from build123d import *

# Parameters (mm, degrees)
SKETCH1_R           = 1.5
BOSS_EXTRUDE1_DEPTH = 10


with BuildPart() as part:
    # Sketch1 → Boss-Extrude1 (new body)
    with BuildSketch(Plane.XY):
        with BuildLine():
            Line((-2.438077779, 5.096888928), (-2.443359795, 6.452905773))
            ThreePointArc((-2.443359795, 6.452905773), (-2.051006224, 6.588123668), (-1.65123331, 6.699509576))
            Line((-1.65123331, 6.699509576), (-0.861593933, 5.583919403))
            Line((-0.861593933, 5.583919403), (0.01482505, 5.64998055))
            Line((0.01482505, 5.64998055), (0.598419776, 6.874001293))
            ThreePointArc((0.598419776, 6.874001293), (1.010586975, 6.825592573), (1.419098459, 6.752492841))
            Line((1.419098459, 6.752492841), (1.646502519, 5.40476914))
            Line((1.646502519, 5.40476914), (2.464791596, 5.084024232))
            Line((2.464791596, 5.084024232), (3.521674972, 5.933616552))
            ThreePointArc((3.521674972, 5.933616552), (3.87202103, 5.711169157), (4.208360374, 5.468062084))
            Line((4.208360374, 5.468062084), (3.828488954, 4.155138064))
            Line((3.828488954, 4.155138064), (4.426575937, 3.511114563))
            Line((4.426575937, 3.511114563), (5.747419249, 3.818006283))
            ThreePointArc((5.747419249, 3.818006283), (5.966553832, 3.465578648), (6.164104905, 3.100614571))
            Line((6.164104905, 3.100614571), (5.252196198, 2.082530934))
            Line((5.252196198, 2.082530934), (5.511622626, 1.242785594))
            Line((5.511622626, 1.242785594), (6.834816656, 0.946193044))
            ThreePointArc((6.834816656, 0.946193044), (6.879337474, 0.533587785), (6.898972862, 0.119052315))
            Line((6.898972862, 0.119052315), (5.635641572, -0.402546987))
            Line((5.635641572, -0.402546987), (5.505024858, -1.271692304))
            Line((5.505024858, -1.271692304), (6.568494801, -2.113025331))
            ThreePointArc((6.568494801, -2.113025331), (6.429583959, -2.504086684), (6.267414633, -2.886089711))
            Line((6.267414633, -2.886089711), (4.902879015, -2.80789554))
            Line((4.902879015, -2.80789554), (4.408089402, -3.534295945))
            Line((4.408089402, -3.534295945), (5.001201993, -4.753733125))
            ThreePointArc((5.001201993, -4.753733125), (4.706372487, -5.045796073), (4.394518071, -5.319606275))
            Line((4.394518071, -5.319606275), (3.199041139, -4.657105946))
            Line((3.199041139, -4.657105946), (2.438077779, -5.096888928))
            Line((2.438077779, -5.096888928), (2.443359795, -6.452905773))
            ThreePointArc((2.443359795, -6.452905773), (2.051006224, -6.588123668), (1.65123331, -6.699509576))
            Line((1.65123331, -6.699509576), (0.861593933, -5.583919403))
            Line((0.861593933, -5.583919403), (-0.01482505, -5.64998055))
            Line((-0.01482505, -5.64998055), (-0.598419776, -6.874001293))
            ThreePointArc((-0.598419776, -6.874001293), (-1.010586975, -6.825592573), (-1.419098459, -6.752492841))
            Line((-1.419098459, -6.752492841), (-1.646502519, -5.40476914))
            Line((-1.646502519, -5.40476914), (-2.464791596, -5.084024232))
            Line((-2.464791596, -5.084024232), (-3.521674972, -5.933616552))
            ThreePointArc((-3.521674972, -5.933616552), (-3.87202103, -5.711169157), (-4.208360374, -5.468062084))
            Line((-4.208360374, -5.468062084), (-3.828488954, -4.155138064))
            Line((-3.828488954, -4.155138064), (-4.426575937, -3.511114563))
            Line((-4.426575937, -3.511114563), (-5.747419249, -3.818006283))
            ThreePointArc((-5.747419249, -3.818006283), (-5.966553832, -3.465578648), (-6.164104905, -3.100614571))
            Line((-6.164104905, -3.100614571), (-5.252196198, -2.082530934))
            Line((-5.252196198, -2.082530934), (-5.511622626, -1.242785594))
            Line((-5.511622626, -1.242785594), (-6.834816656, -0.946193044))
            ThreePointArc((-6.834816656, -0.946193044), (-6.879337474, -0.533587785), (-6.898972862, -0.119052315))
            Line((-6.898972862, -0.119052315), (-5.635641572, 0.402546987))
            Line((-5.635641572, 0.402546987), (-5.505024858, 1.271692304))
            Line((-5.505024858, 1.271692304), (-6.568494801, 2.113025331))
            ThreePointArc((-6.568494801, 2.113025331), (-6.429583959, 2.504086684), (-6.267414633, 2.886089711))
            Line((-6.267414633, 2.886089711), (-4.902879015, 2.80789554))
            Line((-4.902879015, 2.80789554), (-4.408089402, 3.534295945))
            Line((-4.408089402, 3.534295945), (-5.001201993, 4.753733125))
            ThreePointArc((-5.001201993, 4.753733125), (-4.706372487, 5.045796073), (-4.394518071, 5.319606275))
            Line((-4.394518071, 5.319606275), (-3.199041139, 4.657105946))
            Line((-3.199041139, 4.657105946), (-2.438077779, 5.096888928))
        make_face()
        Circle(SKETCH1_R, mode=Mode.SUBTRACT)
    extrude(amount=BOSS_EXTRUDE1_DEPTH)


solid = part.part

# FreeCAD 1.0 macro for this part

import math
import FreeCAD as App
import Part
import Sketcher
from FreeCAD import Vector
Q = App.Units.Quantity

doc = App.newDocument("Part")
body = doc.addObject("PartDesign::Body", "Body")

# Sketch on XY plane
sketch1 = body.newObject("Sketcher::SketchObject", "Sketch")
sketch1.AttachmentSupport = (doc.getObject("XY_Plane"), [""])
sketch1.MapMode = "FlatFace"
sketch1.addGeometry([
    Part.LineSegment(Vector(-2.44336, 6.452906, 0), Vector(-2.438078, 5.096889, 0)),  # 0
    Part.LineSegment(Vector(-2.438078, 5.096889, 0), Vector(-3.199041, 4.657106, 0)),  # 1
    Part.LineSegment(Vector(-3.199041, 4.657106, 0), Vector(-4.394518, 5.319606, 0)),  # 2
    Part.ArcOfCircle(Part.Circle(Vector(0, 0, 0), Vector(0, 0, 1), 6.9), math.radians(129.560057), math.radians(136.453201)),  # 3
    Part.LineSegment(Vector(-5.001202, 4.753733, 0), Vector(-4.408089, 3.534296, 0)),  # 4
    Part.LineSegment(Vector(-4.408089, 3.534296, 0), Vector(-4.902879, 2.807896, 0)),  # 5
    Part.LineSegment(Vector(-4.902879, 2.807896, 0), Vector(-6.267415, 2.88609, 0)),  # 6
    Part.ArcOfCircle(Part.Circle(Vector(0, 0, 0), Vector(0, 0, 1), 6.9), math.radians(155.274342), math.radians(162.167487)),  # 7
    Part.LineSegment(Vector(-6.568495, 2.113025, 0), Vector(-5.505025, 1.271692, 0)),  # 8
    Part.LineSegment(Vector(-5.505025, 1.271692, 0), Vector(-5.635642, 0.402547, 0)),  # 9
    Part.LineSegment(Vector(-5.635642, 0.402547, 0), Vector(-6.898973, -0.119052, 0)),  # 10
    Part.ArcOfCircle(Part.Circle(Vector(0, 0, 0), Vector(0, 0, 1), 6.9), math.radians(-179.011372), math.radians(-172.118227)),  # 11
    Part.LineSegment(Vector(-6.834817, -0.946193, 0), Vector(-5.511623, -1.242786, 0)),  # 12
    Part.LineSegment(Vector(-5.511623, -1.242786, 0), Vector(-5.252196, -2.082531, 0)),  # 13
    Part.LineSegment(Vector(-5.252196, -2.082531, 0), Vector(-6.164105, -3.100615, 0)),  # 14
    Part.ArcOfCircle(Part.Circle(Vector(0, 0, 0), Vector(0, 0, 1), 6.9), math.radians(-153.297086), math.radians(-146.403942)),  # 15
    Part.LineSegment(Vector(-5.747419, -3.818006, 0), Vector(-4.426576, -3.511115, 0)),  # 16
    Part.LineSegment(Vector(-4.426576, -3.511115, 0), Vector(-3.828489, -4.155138, 0)),  # 17
    Part.LineSegment(Vector(-3.828489, -4.155138, 0), Vector(-4.20836, -5.468062, 0)),  # 18
    Part.ArcOfCircle(Part.Circle(Vector(0, 0, 0), Vector(0, 0, 1), 6.9), math.radians(-127.582801), math.radians(-120.689656)),  # 19
    Part.LineSegment(Vector(-3.521675, -5.933617, 0), Vector(-2.464792, -5.084024, 0)),  # 20
    Part.LineSegment(Vector(-2.464792, -5.084024, 0), Vector(-1.646503, -5.404769, 0)),  # 21
    Part.LineSegment(Vector(-1.646503, -5.404769, 0), Vector(-1.419098, -6.752493, 0)),  # 22
    Part.ArcOfCircle(Part.Circle(Vector(0, 0, 0), Vector(0, 0, 1), 6.9), math.radians(-101.868515), math.radians(-94.97537)),  # 23
    Part.LineSegment(Vector(-0.59842, -6.874001, 0), Vector(-0.014825, -5.649981, 0)),  # 24
    Part.LineSegment(Vector(-0.014825, -5.649981, 0), Vector(0.861594, -5.583919, 0)),  # 25
    Part.LineSegment(Vector(0.861594, -5.583919, 0), Vector(1.651233, -6.69951, 0)),  # 26
    Part.ArcOfCircle(Part.Circle(Vector(0, 0, 0), Vector(0, 0, 1), 6.9), math.radians(-76.154229), math.radians(-69.261085)),  # 27
    Part.LineSegment(Vector(2.44336, -6.452906, 0), Vector(2.438078, -5.096889, 0)),  # 28
    Part.LineSegment(Vector(2.438078, -5.096889, 0), Vector(3.199041, -4.657106, 0)),  # 29
    Part.LineSegment(Vector(3.199041, -4.657106, 0), Vector(4.394518, -5.319606, 0)),  # 30
    Part.ArcOfCircle(Part.Circle(Vector(0, 0, 0), Vector(0, 0, 1), 6.9), math.radians(-50.439943), math.radians(-43.546799)),  # 31
    Part.LineSegment(Vector(5.001202, -4.753733, 0), Vector(4.408089, -3.534296, 0)),  # 32
    Part.LineSegment(Vector(4.408089, -3.534296, 0), Vector(4.902879, -2.807896, 0)),  # 33
    Part.LineSegment(Vector(4.902879, -2.807896, 0), Vector(6.267415, -2.88609, 0)),  # 34
    Part.ArcOfCircle(Part.Circle(Vector(0, 0, 0), Vector(0, 0, 1), 6.9), math.radians(-24.725658), math.radians(-17.832513)),  # 35
    Part.LineSegment(Vector(6.568495, -2.113025, 0), Vector(5.505025, -1.271692, 0)),  # 36
    Part.LineSegment(Vector(5.505025, -1.271692, 0), Vector(5.635642, -0.402547, 0)),  # 37
    Part.LineSegment(Vector(5.635642, -0.402547, 0), Vector(6.898973, 0.119052, 0)),  # 38
    Part.ArcOfCircle(Part.Circle(Vector(0, 0, 0), Vector(0, 0, 1), 6.9), math.radians(0.988628), math.radians(7.881773)),  # 39
    Part.LineSegment(Vector(6.834817, 0.946193, 0), Vector(5.511623, 1.242786, 0)),  # 40
    Part.LineSegment(Vector(5.511623, 1.242786, 0), Vector(5.252196, 2.082531, 0)),  # 41
    Part.LineSegment(Vector(5.252196, 2.082531, 0), Vector(6.164105, 3.100615, 0)),  # 42
    Part.ArcOfCircle(Part.Circle(Vector(0, 0, 0), Vector(0, 0, 1), 6.9), math.radians(26.702914), math.radians(33.596058)),  # 43
    Part.LineSegment(Vector(5.747419, 3.818006, 0), Vector(4.426576, 3.511115, 0)),  # 44
    Part.LineSegment(Vector(4.426576, 3.511115, 0), Vector(3.828489, 4.155138, 0)),  # 45
    Part.LineSegment(Vector(3.828489, 4.155138, 0), Vector(4.20836, 5.468062, 0)),  # 46
    Part.ArcOfCircle(Part.Circle(Vector(0, 0, 0), Vector(0, 0, 1), 6.9), math.radians(52.417199), math.radians(59.310344)),  # 47
    Part.LineSegment(Vector(3.521675, 5.933617, 0), Vector(2.464792, 5.084024, 0)),  # 48
    Part.LineSegment(Vector(2.464792, 5.084024, 0), Vector(1.646503, 5.404769, 0)),  # 49
    Part.LineSegment(Vector(1.646503, 5.404769, 0), Vector(1.419098, 6.752493, 0)),  # 50
    Part.ArcOfCircle(Part.Circle(Vector(0, 0, 0), Vector(0, 0, 1), 6.9), math.radians(78.131485), math.radians(85.02463)),  # 51
    Part.LineSegment(Vector(0.59842, 6.874001, 0), Vector(0.014825, 5.649981, 0)),  # 52
    Part.LineSegment(Vector(0.014825, 5.649981, 0), Vector(-0.861594, 5.583919, 0)),  # 53
    Part.LineSegment(Vector(-0.861594, 5.583919, 0), Vector(-1.651233, 6.69951, 0)),  # 54
    Part.ArcOfCircle(Part.Circle(Vector(0, 0, 0), Vector(0, 0, 1), 6.9), math.radians(103.845771), math.radians(110.738915)),  # 55
    Part.Circle(Vector(0, 0, 0), Vector(0, 0, 1), 1.5),  # 56
], False)
sketch1.addConstraint([
    Sketcher.Constraint("Coincident", 0, 2, 1, 1),
    Sketcher.Constraint("Coincident", 1, 2, 2, 1),
    Sketcher.Constraint("Coincident", 2, 2, 3, 1),
    Sketcher.Constraint("Coincident", 3, 2, 4, 1),
    Sketcher.Constraint("Coincident", 4, 2, 5, 1),
    Sketcher.Constraint("Coincident", 5, 2, 6, 1),
    Sketcher.Constraint("Coincident", 6, 2, 7, 1),
    Sketcher.Constraint("Coincident", 7, 2, 8, 1),
    Sketcher.Constraint("Coincident", 8, 2, 9, 1),
    Sketcher.Constraint("Coincident", 9, 2, 10, 1),
    Sketcher.Constraint("Coincident", 10, 2, 11, 1),
    Sketcher.Constraint("Coincident", 11, 2, 12, 1),
    Sketcher.Constraint("Coincident", 12, 2, 13, 1),
    Sketcher.Constraint("Coincident", 13, 2, 14, 1),
    Sketcher.Constraint("Coincident", 14, 2, 15, 1),
    Sketcher.Constraint("Coincident", 15, 2, 16, 1),
    Sketcher.Constraint("Coincident", 16, 2, 17, 1),
    Sketcher.Constraint("Coincident", 17, 2, 18, 1),
    Sketcher.Constraint("Coincident", 18, 2, 19, 1),
    Sketcher.Constraint("Coincident", 19, 2, 20, 1),
    Sketcher.Constraint("Coincident", 20, 2, 21, 1),
    Sketcher.Constraint("Coincident", 21, 2, 22, 1),
    Sketcher.Constraint("Coincident", 22, 2, 23, 1),
    Sketcher.Constraint("Coincident", 23, 2, 24, 1),
    Sketcher.Constraint("Coincident", 24, 2, 25, 1),
    Sketcher.Constraint("Coincident", 25, 2, 26, 1),
    Sketcher.Constraint("Coincident", 26, 2, 27, 1),
    Sketcher.Constraint("Coincident", 27, 2, 28, 1),
    Sketcher.Constraint("Coincident", 28, 2, 29, 1),
    Sketcher.Constraint("Coincident", 29, 2, 30, 1),
    Sketcher.Constraint("Coincident", 30, 2, 31, 1),
    Sketcher.Constraint("Coincident", 31, 2, 32, 1),
    Sketcher.Constraint("Coincident", 32, 2, 33, 1),
    Sketcher.Constraint("Coincident", 33, 2, 34, 1),
    Sketcher.Constraint("Coincident", 34, 2, 35, 1),
    Sketcher.Constraint("Coincident", 35, 2, 36, 1),
    Sketcher.Constraint("Coincident", 36, 2, 37, 1),
    Sketcher.Constraint("Coincident", 37, 2, 38, 1),
    Sketcher.Constraint("Coincident", 38, 2, 39, 1),
    Sketcher.Constraint("Coincident", 39, 2, 40, 1),
    Sketcher.Constraint("Coincident", 40, 2, 41, 1),
    Sketcher.Constraint("Coincident", 41, 2, 42, 1),
    Sketcher.Constraint("Coincident", 42, 2, 43, 1),
    Sketcher.Constraint("Coincident", 43, 2, 44, 1),
    Sketcher.Constraint("Coincident", 44, 2, 45, 1),
    Sketcher.Constraint("Coincident", 45, 2, 46, 1),
    Sketcher.Constraint("Coincident", 46, 2, 47, 1),
    Sketcher.Constraint("Coincident", 47, 2, 48, 1),
    Sketcher.Constraint("Coincident", 48, 2, 49, 1),
    Sketcher.Constraint("Coincident", 49, 2, 50, 1),
    Sketcher.Constraint("Coincident", 50, 2, 51, 1),
    Sketcher.Constraint("Coincident", 51, 2, 52, 1),
    Sketcher.Constraint("Coincident", 52, 2, 53, 1),
    Sketcher.Constraint("Coincident", 53, 2, 54, 1),
    Sketcher.Constraint("Coincident", 54, 2, 55, 1),
    Sketcher.Constraint("Coincident", 55, 2, 0, 1),
    Sketcher.Constraint("Coincident", 3, 3, -1, 1),
    Sketcher.Constraint("Coincident", 7, 3, -1, 1),
    Sketcher.Constraint("Coincident", 11, 3, -1, 1),
    Sketcher.Constraint("Coincident", 15, 3, -1, 1),
    Sketcher.Constraint("Coincident", 19, 3, -1, 1),
    Sketcher.Constraint("Coincident", 23, 3, -1, 1),
    Sketcher.Constraint("Coincident", 27, 3, -1, 1),
    Sketcher.Constraint("Coincident", 31, 3, -1, 1),
    Sketcher.Constraint("Coincident", 35, 3, -1, 1),
    Sketcher.Constraint("Coincident", 39, 3, -1, 1),
    Sketcher.Constraint("Coincident", 43, 3, -1, 1),
    Sketcher.Constraint("Coincident", 47, 3, -1, 1),
    Sketcher.Constraint("Coincident", 51, 3, -1, 1),
    Sketcher.Constraint("Coincident", 55, 3, -1, 1),
    Sketcher.Constraint("Coincident", 56, 3, -1, 1),
    Sketcher.Constraint("Diameter", 56, Q("3 mm")),
    Sketcher.Constraint("Radius", 3, Q("6.9 mm")),
    Sketcher.Constraint("Radius", 7, Q("6.9 mm")),
    Sketcher.Constraint("Radius", 11, Q("6.9 mm")),
    Sketcher.Constraint("Radius", 15, Q("6.9 mm")),
    Sketcher.Constraint("Radius", 19, Q("6.9 mm")),
    Sketcher.Constraint("Radius", 23, Q("6.9 mm")),
    Sketcher.Constraint("Radius", 27, Q("6.9 mm")),
    Sketcher.Constraint("Radius", 31, Q("6.9 mm")),
    Sketcher.Constraint("Radius", 35, Q("6.9 mm")),
    Sketcher.Constraint("Radius", 39, Q("6.9 mm")),
    Sketcher.Constraint("Radius", 43, Q("6.9 mm")),
    Sketcher.Constraint("Radius", 47, Q("6.9 mm")),
    Sketcher.Constraint("Radius", 51, Q("6.9 mm")),
    Sketcher.Constraint("Radius", 55, Q("6.9 mm")),
    Sketcher.Constraint("DistanceY", 23, 2, -1, 1, Q("6.874001 mm")),
    Sketcher.Constraint("DistanceY", -1, 1, 51, 2, Q("6.874001 mm")),
    Sketcher.Constraint("DistanceX", 3, 2, -1, 1, Q("5.001202 mm")),
    Sketcher.Constraint("DistanceX", 22, 2, -1, 1, Q("1.419098 mm")),
    Sketcher.Constraint("DistanceX", -1, 1, 31, 2, Q("5.001202 mm")),
    Sketcher.Constraint("DistanceX", -1, 1, 50, 2, Q("1.419098 mm")),
    Sketcher.Constraint("DistanceY", -1, 1, 0, 2, Q("5.096889 mm")),
    Sketcher.Constraint("DistanceX", 1, 2, -1, 1, Q("3.199041 mm")),
    Sketcher.Constraint("DistanceX", 2, 2, -1, 1, Q("4.394518 mm")),
    Sketcher.Constraint("DistanceX", 4, 2, -1, 1, Q("4.408089 mm")),
    Sketcher.Constraint("DistanceX", 5, 2, -1, 1, Q("4.902879 mm")),
    Sketcher.Constraint("DistanceY", -1, 1, 6, 2, Q("2.88609 mm")),
    Sketcher.Constraint("DistanceX", 9, 2, -1, 1, Q("5.635642 mm")),
    Sketcher.Constraint("DistanceY", 13, 2, -1, 1, Q("2.082531 mm")),
    Sketcher.Constraint("DistanceX", 15, 2, -1, 1, Q("5.747419 mm")),
    Sketcher.Constraint("DistanceX", 17, 2, -1, 1, Q("3.828489 mm")),
    Sketcher.Constraint("DistanceY", 17, 2, -1, 1, Q("4.155138 mm")),
    Sketcher.Constraint("DistanceX", 18, 2, -1, 1, Q("4.20836 mm")),
    Sketcher.Constraint("DistanceX", 20, 2, -1, 1, Q("2.464792 mm")),
    Sketcher.Constraint("DistanceY", 21, 2, -1, 1, Q("5.404769 mm")),
    Sketcher.Constraint("DistanceY", 24, 2, -1, 1, Q("5.649981 mm")),
    Sketcher.Constraint("DistanceY", 25, 2, -1, 1, Q("5.583919 mm")),
    Sketcher.Constraint("DistanceY", 26, 2, -1, 1, Q("6.69951 mm")),
    Sketcher.Constraint("DistanceX", -1, 1, 27, 2, Q("2.44336 mm")),
    Sketcher.Constraint("DistanceY", 28, 2, -1, 1, Q("5.096889 mm")),
    Sketcher.Constraint("DistanceX", -1, 1, 29, 2, Q("3.199041 mm")),
    Sketcher.Constraint("DistanceX", -1, 1, 30, 2, Q("4.394518 mm")),
    Sketcher.Constraint("DistanceX", -1, 1, 32, 2, Q("4.408089 mm")),
    Sketcher.Constraint("DistanceX", -1, 1, 33, 2, Q("4.902879 mm")),
    Sketcher.Constraint("DistanceY", 34, 2, -1, 1, Q("2.88609 mm")),
    Sketcher.Constraint("DistanceX", -1, 1, 37, 2, Q("5.635642 mm")),
    Sketcher.Constraint("DistanceY", -1, 1, 41, 2, Q("2.082531 mm")),
    Sketcher.Constraint("DistanceX", -1, 1, 43, 2, Q("5.747419 mm")),
    Sketcher.Constraint("DistanceX", -1, 1, 45, 2, Q("3.828489 mm")),
    Sketcher.Constraint("DistanceY", -1, 1, 45, 2, Q("4.155138 mm")),
    Sketcher.Constraint("DistanceX", -1, 1, 46, 2, Q("4.20836 mm")),
    Sketcher.Constraint("DistanceX", -1, 1, 48, 2, Q("2.464792 mm")),
    Sketcher.Constraint("DistanceY", -1, 1, 49, 2, Q("5.404769 mm")),
    Sketcher.Constraint("DistanceY", -1, 1, 52, 2, Q("5.649981 mm")),
    Sketcher.Constraint("DistanceY", -1, 1, 53, 2, Q("5.583919 mm")),
    Sketcher.Constraint("DistanceY", -1, 1, 54, 2, Q("6.69951 mm")),
    Sketcher.Constraint("DistanceX", 55, 2, -1, 1, Q("2.44336 mm")),
    Sketcher.Constraint("Distance", 1, Q("0.878905 mm")),
    Sketcher.Constraint("Distance", 2, Q("1.366774 mm")),
    Sketcher.Constraint("Distance", 4, Q("1.356027 mm")),
    Sketcher.Constraint("Distance", 5, Q("0.878905 mm")),
    Sketcher.Constraint("Distance", 8, Q("1.356027 mm")),
    Sketcher.Constraint("Distance", 9, Q("0.878905 mm")),
    Sketcher.Constraint("Distance", 10, Q("1.366774 mm")),
    Sketcher.Constraint("Distance", 12, Q("1.356027 mm")),
    Sketcher.Constraint("Distance", 13, Q("0.878905 mm")),
    Sketcher.Constraint("Distance", 14, Q("1.366774 mm")),
    Sketcher.Constraint("Distance", 16, Q("1.356027 mm")),
    Sketcher.Constraint("Distance", 17, Q("0.878905 mm")),
    Sketcher.Constraint("Distance", 20, Q("1.356027 mm")),
    Sketcher.Constraint("Distance", 21, Q("0.878905 mm")),
    Sketcher.Constraint("Distance", 22, Q("1.366774 mm")),
    Sketcher.Constraint("Distance", 24, Q("1.356027 mm")),
    Sketcher.Constraint("Distance", 25, Q("0.878905 mm")),
    Sketcher.Constraint("Distance", 29, Q("0.878905 mm")),
    Sketcher.Constraint("Distance", 30, Q("1.366774 mm")),
    Sketcher.Constraint("Distance", 32, Q("1.356027 mm")),
    Sketcher.Constraint("Distance", 33, Q("0.878905 mm")),
    Sketcher.Constraint("Distance", 36, Q("1.356027 mm")),
    Sketcher.Constraint("Distance", 37, Q("0.878905 mm")),
    Sketcher.Constraint("Distance", 38, Q("1.366774 mm")),
    Sketcher.Constraint("Distance", 40, Q("1.356027 mm")),
    Sketcher.Constraint("Distance", 41, Q("0.878905 mm")),
    Sketcher.Constraint("Distance", 42, Q("1.366774 mm")),
    Sketcher.Constraint("Distance", 44, Q("1.356027 mm")),
    Sketcher.Constraint("Distance", 45, Q("0.878905 mm")),
    Sketcher.Constraint("Distance", 48, Q("1.356027 mm")),
    Sketcher.Constraint("Distance", 49, Q("0.878905 mm")),
    Sketcher.Constraint("Distance", 50, Q("1.366774 mm")),
    Sketcher.Constraint("Distance", 52, Q("1.356027 mm")),
    Sketcher.Constraint("Distance", 53, Q("0.878905 mm")),
    Sketcher.Constraint("DistanceX", 7, 2, -1, 1, Q("6.568495 mm")),
    Sketcher.Constraint("DistanceX", 8, 2, -1, 1, Q("5.505025 mm")),
    Sketcher.Constraint("DistanceX", 11, 2, -1, 1, Q("6.834817 mm")),
    Sketcher.Constraint("DistanceX", 12, 2, -1, 1, Q("5.511623 mm")),
    Sketcher.Constraint("DistanceX", -1, 1, 35, 2, Q("6.568495 mm")),
    Sketcher.Constraint("DistanceX", -1, 1, 36, 2, Q("5.505025 mm")),
    Sketcher.Constraint("DistanceX", -1, 1, 39, 2, Q("6.834817 mm")),
    Sketcher.Constraint("DistanceX", -1, 1, 40, 2, Q("5.511623 mm")),
])
pad1 = body.newObject("PartDesign::Pad", "Pad")
pad1.Profile = sketch1
pad1.Length = 10

doc.recompute()
